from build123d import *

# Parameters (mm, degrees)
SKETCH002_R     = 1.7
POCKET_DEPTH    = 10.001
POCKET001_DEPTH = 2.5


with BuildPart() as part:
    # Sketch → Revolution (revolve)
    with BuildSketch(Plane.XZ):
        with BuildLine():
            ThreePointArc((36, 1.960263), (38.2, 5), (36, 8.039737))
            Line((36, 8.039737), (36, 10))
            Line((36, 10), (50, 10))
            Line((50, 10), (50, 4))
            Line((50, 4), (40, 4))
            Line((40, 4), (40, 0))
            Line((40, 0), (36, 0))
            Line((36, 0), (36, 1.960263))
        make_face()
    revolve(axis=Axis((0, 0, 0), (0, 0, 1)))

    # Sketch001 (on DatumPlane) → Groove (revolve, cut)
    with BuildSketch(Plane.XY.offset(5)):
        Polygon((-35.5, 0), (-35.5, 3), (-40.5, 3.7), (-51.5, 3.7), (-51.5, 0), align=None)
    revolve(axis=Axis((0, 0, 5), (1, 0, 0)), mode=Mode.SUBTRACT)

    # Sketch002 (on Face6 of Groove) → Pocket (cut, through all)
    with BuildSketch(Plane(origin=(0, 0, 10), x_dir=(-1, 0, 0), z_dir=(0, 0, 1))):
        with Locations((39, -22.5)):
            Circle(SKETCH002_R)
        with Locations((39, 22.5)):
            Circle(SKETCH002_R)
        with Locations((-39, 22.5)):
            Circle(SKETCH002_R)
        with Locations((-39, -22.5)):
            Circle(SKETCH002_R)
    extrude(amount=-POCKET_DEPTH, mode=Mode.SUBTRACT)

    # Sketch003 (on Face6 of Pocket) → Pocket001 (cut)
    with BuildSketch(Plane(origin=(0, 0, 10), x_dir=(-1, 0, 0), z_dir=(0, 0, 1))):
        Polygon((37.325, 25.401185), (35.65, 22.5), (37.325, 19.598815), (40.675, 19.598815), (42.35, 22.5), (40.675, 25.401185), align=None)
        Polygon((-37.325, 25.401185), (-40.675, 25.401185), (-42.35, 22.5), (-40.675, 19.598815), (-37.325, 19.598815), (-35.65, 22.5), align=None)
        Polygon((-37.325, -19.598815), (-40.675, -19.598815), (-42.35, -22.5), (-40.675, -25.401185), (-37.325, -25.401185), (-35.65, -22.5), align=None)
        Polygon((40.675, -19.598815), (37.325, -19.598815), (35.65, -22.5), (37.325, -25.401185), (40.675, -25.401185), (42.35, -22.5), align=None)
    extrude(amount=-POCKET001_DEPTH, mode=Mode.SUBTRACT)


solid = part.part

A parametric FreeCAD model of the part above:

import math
import FreeCAD as App
import Part
import Sketcher
from FreeCAD import Vector
Q = App.Units.Quantity


def add_polygon(sketch, points):
    """Adds a closed chain of lines whose ends are joined by coincident constraints."""
    first, n = sketch.GeometryCount, len(points)
    for a, b in zip(points, points[1:] + points[:1]):
        sketch.addGeometry(Part.LineSegment(App.Vector(*a, 0), App.Vector(*b, 0)), False)
    for i in range(n):
        sketch.addConstraint(Sketcher.Constraint("Coincident", first + i, 2, first + (i + 1) % n, 1))

doc = App.newDocument("Part")
body = doc.addObject("PartDesign::Body", "Body")

# Sketch on XZ plane
sketch1 = body.newObject("Sketcher::SketchObject", "Sketch")
sketch1.AttachmentSupport = (doc.getObject("XZ_Plane"), [""])
sketch1.MapMode = "FlatFace"
sketch1.addGeometry([
    Part.ArcOfCircle(Part.Circle(Vector(35, 5, 0), Vector(0, 0, 1), 3.2), math.radians(-71.79004), math.radians(71.79004)),  # 0
    Part.LineSegment(Vector(36, 1.960263, 0), Vector(36, 0, 0)),  # 1
    Part.LineSegment(Vector(36, 0, 0), Vector(40, 0, 0)),  # 2
    Part.LineSegment(Vector(40, 0, 0), Vector(40, 4, 0)),  # 3
    Part.LineSegment(Vector(40, 4, 0), Vector(50, 4, 0)),  # 4
    Part.LineSegment(Vector(50, 4, 0), Vector(50, 10, 0)),  # 5
    Part.LineSegment(Vector(50, 10, 0), Vector(36, 10, 0)),  # 6
    Part.LineSegment(Vector(36, 10, 0), Vector(36, 8.039737, 0)),  # 7
], False)
sketch1.addConstraint([
    Sketcher.Constraint("Coincident", 0, 1, 1, 1),
    Sketcher.Constraint("Coincident", 1, 2, 2, 1),
    Sketcher.Constraint("Coincident", 2, 2, 3, 1),
    Sketcher.Constraint("Coincident", 3, 2, 4, 1),
    Sketcher.Constraint("Coincident", 4, 2, 5, 1),
    Sketcher.Constraint("Coincident", 5, 2, 6, 1),
    Sketcher.Constraint("Coincident", 6, 2, 7, 1),
    Sketcher.Constraint("Coincident", 7, 2, 0, 2),
    Sketcher.Constraint("Vertical", 1),
    Sketcher.Constraint("Horizontal", 2),
    Sketcher.Constraint("Vertical", 3),
    Sketcher.Constraint("Horizontal", 4),
    Sketcher.Constraint("Vertical", 5),
    Sketcher.Constraint("Horizontal", 6),
    Sketcher.Constraint("Vertical", 7),
    Sketcher.Constraint("PointOnObject", 1, 2, -1),
    Sketcher.Constraint("Vertical", 1, 2, 6, 2),
    Sketcher.Constraint("Equal", 2, 3),
    Sketcher.Constraint("Equal", 1, 7),
    Sketcher.Constraint("Radius", 0, Q("3.2 mm")),
    Sketcher.Constraint("DistanceX", 2, 1, 2, 2, Q("4 mm")),
    Sketcher.Constraint("DistanceX", 4, 1, 4, 2, Q("10 mm")),
    Sketcher.Constraint("DistanceY", 5, 1, 5, 2, Q("6 mm")),
    Sketcher.Constraint("DistanceX", -1, 1, 0, 3, Q("35 mm")),
    Sketcher.Constraint("DistanceX", -1, 1, 0, 1, Q("36 mm")),
])
revolution = body.newObject("PartDesign::Revolution", "Revolution")
revolution.Profile = sketch1
revolution.ReferenceAxis = (sketch1, ["V_Axis"])
revolution.Angle = 360

# Sketch on XY plane
sketch2 = body.newObject("Sketcher::SketchObject", "Sketch001")
sketch2.AttachmentSupport = (doc.getObject("XY_Plane"), [""])
sketch2.MapMode = "FlatFace"
sketch2.AttachmentOffset = App.Placement(Vector(0, 0, 5), App.Rotation())
add_polygon(sketch2, [(-35.5, 0), (-35.5, 3), (-40.5, 3.7), (-51.5, 3.7), (-51.5, 0)])  # lines 0-4
sketch2.addConstraint([
    Sketcher.Constraint("Vertical", 0),
    Sketcher.Constraint("Horizontal", 2),
    Sketcher.Constraint("Vertical", 3),
    Sketcher.Constraint("Horizontal", 4),
    Sketcher.Constraint("PointOnObject", 3, 2, -1),
    Sketcher.Constraint("DistanceX", 2, 2, 2, 1, Q("11 mm")),
    Sketcher.Constraint("DistanceX", 4, 1, 4, 2, Q("16 mm")),
    Sketcher.Constraint("DistanceY", 0, 1, 0, 2, Q("3 mm")),
    Sketcher.Constraint("DistanceY", 3, 2, 3, 1, Q("3.7 mm")),
    Sketcher.Constraint("DistanceX", 0, 2, -1, 1, Q("35.5 mm")),
])
groove = body.newObject("PartDesign::Groove", "Groove")
groove.Profile = sketch2
groove.ReferenceAxis = (sketch2, ["H_Axis"])
groove.Angle = 360

# Sketch on XY plane
sketch3 = body.newObject("Sketcher::SketchObject", "Sketch002")
sketch3.AttachmentSupport = (doc.getObject("XY_Plane"), [""])
sketch3.MapMode = "FlatFace"
sketch3.AttachmentOffset = App.Placement(Vector(0, 0, 10), App.Rotation())
sketch3.addGeometry([
    Part.Circle(Vector(-39, 22.5, 0), Vector(0, 0, 1), 1.7),
    Part.Circle(Vector(-39, -22.5, 0), Vector(0, 0, 1), 1.7),
    Part.Circle(Vector(39, -22.5, 0), Vector(0, 0, 1), 1.7),
    Part.Circle(Vector(39, 22.5, 0), Vector(0, 0, 1), 1.7),
], False)
sketch3.addConstraint([
    Sketcher.Constraint("Equal", 0, 1),
    Sketcher.Constraint("Equal", 1, 2),
    Sketcher.Constraint("Equal", 2, 3),
    Sketcher.Constraint("Symmetric", 0, 3, 2, 3, -1, 1),
    Sketcher.Constraint("Symmetric", 1, 3, 3, 3, -1, 1),
    Sketcher.Constraint("Symmetric", 1, 3, 2, 3, -2),
    Sketcher.Constraint("Diameter", 0, Q("3.4 mm")),
    Sketcher.Constraint("DistanceX", 0, 3, -1, 1, Q("39 mm")),
    Sketcher.Constraint("DistanceY", 1, 3, 0, 3, Q("45 mm")),
])
pocket1 = body.newObject("PartDesign::Pocket", "Pocket")
pocket1.Profile = sketch3
pocket1.Type = "ThroughAll"

# Sketch on XY plane
sketch4 = body.newObject("Sketcher::SketchObject", "Sketch003")
sketch4.AttachmentSupport = (doc.getObject("XY_Plane"), [""])
sketch4.MapMode = "FlatFace"
sketch4.AttachmentOffset = App.Placement(Vector(0, 0, 10), App.Rotation())
add_polygon(sketch4, [(-37.325, -25.401185), (-35.65, -22.5), (-37.325, -19.598815), (-40.675, -19.598815), (-42.35, -22.5), (-40.675, -25.401185)])  # lines 0-5
add_polygon(sketch4, [(37.325, -25.401185), (40.675, -25.401185), (42.35, -22.5), (40.675, -19.598815), (37.325, -19.598815), (35.65, -22.5)])  # lines 6-11
add_polygon(sketch4, [(37.325, 19.598815), (40.675, 19.598815), (42.35, 22.5), (40.675, 25.401185), (37.325, 25.401185), (35.65, 22.5)])  # lines 12-17
add_polygon(sketch4, [(-40.675, 19.598815), (-37.325, 19.598815), (-35.65, 22.5), (-37.325, 25.401185), (-40.675, 25.401185), (-42.35, 22.5)])  # lines 18-23
sketch4.addConstraint([
    Sketcher.Constraint("Horizontal", 2),
    Sketcher.Constraint("Horizontal", 5),
    Sketcher.Constraint("Horizontal", 6),
    Sketcher.Constraint("Horizontal", 9),
    Sketcher.Constraint("Horizontal", 12),
    Sketcher.Constraint("Horizontal", 15),
    Sketcher.Constraint("Horizontal", 18),
    Sketcher.Constraint("Horizontal", 21),
    Sketcher.Constraint("Symmetric", 2, 2, 12, 2, -1, 1),
    Sketcher.Constraint("Symmetric", 3, 2, 13, 2, -1, 1),
    Sketcher.Constraint("Symmetric", 4, 2, 14, 2, -1, 1),
    Sketcher.Constraint("Symmetric", 0, 2, 16, 2, -1, 1),
    Sketcher.Constraint("Symmetric", 9, 2, 18, 2, -1, 1),
    Sketcher.Constraint("Symmetric", 10, 2, 19, 2, -1, 1),
    Sketcher.Constraint("Symmetric", 11, 2, 20, 2, -1, 1),
    Sketcher.Constraint("Symmetric", 7, 2, 22, 2, -1, 1),
    Sketcher.Constraint("Symmetric", 4, 2, 6, 2, -2),
    Sketcher.Constraint("Symmetric", 3, 2, 7, 2, -2),
    Sketcher.Constraint("Symmetric", 2, 2, 8, 2, -2),
    Sketcher.Constraint("Symmetric", 0, 2, 10, 2, -2),
    Sketcher.Constraint("Parallel", 0, 3),
    Sketcher.Constraint("Parallel", 1, 4),
    Sketcher.Constraint("Parallel", 3, 7),
    Sketcher.Constraint("Parallel", 7, 10),
    Sketcher.Constraint("Parallel", 8, 11),
    Sketcher.Constraint("Parallel", 13, 16),
    Sketcher.Constraint("Parallel", 14, 17),
    Sketcher.Constraint("Parallel", 19, 22),
    Sketcher.Constraint("Parallel", 20, 23),
    Sketcher.Constraint("Horizontal", 0, 2, 3, 2),
    Sketcher.Constraint("Vertical", 2, 2, 4, 2),
    Sketcher.Constraint("Angle", 0, Q("59.999999 deg")),
    Sketcher.Constraint("DistanceX", 5, 2, 6, 2, Q("78 mm")),
    Sketcher.Constraint("DistanceY", 6, 2, 12, 2, Q("45 mm")),
    Sketcher.Constraint("DistanceX", 2, 2, 2, 1, Q("3.35 mm")),
    Sketcher.Constraint("DistanceX", 3, 2, 0, 2, Q("6.7 mm")),
])
pocket2 = body.newObject("PartDesign::Pocket", "Pocket001")
pocket2.Profile = sketch4
pocket2.Length = 2.5

doc.recompute()
